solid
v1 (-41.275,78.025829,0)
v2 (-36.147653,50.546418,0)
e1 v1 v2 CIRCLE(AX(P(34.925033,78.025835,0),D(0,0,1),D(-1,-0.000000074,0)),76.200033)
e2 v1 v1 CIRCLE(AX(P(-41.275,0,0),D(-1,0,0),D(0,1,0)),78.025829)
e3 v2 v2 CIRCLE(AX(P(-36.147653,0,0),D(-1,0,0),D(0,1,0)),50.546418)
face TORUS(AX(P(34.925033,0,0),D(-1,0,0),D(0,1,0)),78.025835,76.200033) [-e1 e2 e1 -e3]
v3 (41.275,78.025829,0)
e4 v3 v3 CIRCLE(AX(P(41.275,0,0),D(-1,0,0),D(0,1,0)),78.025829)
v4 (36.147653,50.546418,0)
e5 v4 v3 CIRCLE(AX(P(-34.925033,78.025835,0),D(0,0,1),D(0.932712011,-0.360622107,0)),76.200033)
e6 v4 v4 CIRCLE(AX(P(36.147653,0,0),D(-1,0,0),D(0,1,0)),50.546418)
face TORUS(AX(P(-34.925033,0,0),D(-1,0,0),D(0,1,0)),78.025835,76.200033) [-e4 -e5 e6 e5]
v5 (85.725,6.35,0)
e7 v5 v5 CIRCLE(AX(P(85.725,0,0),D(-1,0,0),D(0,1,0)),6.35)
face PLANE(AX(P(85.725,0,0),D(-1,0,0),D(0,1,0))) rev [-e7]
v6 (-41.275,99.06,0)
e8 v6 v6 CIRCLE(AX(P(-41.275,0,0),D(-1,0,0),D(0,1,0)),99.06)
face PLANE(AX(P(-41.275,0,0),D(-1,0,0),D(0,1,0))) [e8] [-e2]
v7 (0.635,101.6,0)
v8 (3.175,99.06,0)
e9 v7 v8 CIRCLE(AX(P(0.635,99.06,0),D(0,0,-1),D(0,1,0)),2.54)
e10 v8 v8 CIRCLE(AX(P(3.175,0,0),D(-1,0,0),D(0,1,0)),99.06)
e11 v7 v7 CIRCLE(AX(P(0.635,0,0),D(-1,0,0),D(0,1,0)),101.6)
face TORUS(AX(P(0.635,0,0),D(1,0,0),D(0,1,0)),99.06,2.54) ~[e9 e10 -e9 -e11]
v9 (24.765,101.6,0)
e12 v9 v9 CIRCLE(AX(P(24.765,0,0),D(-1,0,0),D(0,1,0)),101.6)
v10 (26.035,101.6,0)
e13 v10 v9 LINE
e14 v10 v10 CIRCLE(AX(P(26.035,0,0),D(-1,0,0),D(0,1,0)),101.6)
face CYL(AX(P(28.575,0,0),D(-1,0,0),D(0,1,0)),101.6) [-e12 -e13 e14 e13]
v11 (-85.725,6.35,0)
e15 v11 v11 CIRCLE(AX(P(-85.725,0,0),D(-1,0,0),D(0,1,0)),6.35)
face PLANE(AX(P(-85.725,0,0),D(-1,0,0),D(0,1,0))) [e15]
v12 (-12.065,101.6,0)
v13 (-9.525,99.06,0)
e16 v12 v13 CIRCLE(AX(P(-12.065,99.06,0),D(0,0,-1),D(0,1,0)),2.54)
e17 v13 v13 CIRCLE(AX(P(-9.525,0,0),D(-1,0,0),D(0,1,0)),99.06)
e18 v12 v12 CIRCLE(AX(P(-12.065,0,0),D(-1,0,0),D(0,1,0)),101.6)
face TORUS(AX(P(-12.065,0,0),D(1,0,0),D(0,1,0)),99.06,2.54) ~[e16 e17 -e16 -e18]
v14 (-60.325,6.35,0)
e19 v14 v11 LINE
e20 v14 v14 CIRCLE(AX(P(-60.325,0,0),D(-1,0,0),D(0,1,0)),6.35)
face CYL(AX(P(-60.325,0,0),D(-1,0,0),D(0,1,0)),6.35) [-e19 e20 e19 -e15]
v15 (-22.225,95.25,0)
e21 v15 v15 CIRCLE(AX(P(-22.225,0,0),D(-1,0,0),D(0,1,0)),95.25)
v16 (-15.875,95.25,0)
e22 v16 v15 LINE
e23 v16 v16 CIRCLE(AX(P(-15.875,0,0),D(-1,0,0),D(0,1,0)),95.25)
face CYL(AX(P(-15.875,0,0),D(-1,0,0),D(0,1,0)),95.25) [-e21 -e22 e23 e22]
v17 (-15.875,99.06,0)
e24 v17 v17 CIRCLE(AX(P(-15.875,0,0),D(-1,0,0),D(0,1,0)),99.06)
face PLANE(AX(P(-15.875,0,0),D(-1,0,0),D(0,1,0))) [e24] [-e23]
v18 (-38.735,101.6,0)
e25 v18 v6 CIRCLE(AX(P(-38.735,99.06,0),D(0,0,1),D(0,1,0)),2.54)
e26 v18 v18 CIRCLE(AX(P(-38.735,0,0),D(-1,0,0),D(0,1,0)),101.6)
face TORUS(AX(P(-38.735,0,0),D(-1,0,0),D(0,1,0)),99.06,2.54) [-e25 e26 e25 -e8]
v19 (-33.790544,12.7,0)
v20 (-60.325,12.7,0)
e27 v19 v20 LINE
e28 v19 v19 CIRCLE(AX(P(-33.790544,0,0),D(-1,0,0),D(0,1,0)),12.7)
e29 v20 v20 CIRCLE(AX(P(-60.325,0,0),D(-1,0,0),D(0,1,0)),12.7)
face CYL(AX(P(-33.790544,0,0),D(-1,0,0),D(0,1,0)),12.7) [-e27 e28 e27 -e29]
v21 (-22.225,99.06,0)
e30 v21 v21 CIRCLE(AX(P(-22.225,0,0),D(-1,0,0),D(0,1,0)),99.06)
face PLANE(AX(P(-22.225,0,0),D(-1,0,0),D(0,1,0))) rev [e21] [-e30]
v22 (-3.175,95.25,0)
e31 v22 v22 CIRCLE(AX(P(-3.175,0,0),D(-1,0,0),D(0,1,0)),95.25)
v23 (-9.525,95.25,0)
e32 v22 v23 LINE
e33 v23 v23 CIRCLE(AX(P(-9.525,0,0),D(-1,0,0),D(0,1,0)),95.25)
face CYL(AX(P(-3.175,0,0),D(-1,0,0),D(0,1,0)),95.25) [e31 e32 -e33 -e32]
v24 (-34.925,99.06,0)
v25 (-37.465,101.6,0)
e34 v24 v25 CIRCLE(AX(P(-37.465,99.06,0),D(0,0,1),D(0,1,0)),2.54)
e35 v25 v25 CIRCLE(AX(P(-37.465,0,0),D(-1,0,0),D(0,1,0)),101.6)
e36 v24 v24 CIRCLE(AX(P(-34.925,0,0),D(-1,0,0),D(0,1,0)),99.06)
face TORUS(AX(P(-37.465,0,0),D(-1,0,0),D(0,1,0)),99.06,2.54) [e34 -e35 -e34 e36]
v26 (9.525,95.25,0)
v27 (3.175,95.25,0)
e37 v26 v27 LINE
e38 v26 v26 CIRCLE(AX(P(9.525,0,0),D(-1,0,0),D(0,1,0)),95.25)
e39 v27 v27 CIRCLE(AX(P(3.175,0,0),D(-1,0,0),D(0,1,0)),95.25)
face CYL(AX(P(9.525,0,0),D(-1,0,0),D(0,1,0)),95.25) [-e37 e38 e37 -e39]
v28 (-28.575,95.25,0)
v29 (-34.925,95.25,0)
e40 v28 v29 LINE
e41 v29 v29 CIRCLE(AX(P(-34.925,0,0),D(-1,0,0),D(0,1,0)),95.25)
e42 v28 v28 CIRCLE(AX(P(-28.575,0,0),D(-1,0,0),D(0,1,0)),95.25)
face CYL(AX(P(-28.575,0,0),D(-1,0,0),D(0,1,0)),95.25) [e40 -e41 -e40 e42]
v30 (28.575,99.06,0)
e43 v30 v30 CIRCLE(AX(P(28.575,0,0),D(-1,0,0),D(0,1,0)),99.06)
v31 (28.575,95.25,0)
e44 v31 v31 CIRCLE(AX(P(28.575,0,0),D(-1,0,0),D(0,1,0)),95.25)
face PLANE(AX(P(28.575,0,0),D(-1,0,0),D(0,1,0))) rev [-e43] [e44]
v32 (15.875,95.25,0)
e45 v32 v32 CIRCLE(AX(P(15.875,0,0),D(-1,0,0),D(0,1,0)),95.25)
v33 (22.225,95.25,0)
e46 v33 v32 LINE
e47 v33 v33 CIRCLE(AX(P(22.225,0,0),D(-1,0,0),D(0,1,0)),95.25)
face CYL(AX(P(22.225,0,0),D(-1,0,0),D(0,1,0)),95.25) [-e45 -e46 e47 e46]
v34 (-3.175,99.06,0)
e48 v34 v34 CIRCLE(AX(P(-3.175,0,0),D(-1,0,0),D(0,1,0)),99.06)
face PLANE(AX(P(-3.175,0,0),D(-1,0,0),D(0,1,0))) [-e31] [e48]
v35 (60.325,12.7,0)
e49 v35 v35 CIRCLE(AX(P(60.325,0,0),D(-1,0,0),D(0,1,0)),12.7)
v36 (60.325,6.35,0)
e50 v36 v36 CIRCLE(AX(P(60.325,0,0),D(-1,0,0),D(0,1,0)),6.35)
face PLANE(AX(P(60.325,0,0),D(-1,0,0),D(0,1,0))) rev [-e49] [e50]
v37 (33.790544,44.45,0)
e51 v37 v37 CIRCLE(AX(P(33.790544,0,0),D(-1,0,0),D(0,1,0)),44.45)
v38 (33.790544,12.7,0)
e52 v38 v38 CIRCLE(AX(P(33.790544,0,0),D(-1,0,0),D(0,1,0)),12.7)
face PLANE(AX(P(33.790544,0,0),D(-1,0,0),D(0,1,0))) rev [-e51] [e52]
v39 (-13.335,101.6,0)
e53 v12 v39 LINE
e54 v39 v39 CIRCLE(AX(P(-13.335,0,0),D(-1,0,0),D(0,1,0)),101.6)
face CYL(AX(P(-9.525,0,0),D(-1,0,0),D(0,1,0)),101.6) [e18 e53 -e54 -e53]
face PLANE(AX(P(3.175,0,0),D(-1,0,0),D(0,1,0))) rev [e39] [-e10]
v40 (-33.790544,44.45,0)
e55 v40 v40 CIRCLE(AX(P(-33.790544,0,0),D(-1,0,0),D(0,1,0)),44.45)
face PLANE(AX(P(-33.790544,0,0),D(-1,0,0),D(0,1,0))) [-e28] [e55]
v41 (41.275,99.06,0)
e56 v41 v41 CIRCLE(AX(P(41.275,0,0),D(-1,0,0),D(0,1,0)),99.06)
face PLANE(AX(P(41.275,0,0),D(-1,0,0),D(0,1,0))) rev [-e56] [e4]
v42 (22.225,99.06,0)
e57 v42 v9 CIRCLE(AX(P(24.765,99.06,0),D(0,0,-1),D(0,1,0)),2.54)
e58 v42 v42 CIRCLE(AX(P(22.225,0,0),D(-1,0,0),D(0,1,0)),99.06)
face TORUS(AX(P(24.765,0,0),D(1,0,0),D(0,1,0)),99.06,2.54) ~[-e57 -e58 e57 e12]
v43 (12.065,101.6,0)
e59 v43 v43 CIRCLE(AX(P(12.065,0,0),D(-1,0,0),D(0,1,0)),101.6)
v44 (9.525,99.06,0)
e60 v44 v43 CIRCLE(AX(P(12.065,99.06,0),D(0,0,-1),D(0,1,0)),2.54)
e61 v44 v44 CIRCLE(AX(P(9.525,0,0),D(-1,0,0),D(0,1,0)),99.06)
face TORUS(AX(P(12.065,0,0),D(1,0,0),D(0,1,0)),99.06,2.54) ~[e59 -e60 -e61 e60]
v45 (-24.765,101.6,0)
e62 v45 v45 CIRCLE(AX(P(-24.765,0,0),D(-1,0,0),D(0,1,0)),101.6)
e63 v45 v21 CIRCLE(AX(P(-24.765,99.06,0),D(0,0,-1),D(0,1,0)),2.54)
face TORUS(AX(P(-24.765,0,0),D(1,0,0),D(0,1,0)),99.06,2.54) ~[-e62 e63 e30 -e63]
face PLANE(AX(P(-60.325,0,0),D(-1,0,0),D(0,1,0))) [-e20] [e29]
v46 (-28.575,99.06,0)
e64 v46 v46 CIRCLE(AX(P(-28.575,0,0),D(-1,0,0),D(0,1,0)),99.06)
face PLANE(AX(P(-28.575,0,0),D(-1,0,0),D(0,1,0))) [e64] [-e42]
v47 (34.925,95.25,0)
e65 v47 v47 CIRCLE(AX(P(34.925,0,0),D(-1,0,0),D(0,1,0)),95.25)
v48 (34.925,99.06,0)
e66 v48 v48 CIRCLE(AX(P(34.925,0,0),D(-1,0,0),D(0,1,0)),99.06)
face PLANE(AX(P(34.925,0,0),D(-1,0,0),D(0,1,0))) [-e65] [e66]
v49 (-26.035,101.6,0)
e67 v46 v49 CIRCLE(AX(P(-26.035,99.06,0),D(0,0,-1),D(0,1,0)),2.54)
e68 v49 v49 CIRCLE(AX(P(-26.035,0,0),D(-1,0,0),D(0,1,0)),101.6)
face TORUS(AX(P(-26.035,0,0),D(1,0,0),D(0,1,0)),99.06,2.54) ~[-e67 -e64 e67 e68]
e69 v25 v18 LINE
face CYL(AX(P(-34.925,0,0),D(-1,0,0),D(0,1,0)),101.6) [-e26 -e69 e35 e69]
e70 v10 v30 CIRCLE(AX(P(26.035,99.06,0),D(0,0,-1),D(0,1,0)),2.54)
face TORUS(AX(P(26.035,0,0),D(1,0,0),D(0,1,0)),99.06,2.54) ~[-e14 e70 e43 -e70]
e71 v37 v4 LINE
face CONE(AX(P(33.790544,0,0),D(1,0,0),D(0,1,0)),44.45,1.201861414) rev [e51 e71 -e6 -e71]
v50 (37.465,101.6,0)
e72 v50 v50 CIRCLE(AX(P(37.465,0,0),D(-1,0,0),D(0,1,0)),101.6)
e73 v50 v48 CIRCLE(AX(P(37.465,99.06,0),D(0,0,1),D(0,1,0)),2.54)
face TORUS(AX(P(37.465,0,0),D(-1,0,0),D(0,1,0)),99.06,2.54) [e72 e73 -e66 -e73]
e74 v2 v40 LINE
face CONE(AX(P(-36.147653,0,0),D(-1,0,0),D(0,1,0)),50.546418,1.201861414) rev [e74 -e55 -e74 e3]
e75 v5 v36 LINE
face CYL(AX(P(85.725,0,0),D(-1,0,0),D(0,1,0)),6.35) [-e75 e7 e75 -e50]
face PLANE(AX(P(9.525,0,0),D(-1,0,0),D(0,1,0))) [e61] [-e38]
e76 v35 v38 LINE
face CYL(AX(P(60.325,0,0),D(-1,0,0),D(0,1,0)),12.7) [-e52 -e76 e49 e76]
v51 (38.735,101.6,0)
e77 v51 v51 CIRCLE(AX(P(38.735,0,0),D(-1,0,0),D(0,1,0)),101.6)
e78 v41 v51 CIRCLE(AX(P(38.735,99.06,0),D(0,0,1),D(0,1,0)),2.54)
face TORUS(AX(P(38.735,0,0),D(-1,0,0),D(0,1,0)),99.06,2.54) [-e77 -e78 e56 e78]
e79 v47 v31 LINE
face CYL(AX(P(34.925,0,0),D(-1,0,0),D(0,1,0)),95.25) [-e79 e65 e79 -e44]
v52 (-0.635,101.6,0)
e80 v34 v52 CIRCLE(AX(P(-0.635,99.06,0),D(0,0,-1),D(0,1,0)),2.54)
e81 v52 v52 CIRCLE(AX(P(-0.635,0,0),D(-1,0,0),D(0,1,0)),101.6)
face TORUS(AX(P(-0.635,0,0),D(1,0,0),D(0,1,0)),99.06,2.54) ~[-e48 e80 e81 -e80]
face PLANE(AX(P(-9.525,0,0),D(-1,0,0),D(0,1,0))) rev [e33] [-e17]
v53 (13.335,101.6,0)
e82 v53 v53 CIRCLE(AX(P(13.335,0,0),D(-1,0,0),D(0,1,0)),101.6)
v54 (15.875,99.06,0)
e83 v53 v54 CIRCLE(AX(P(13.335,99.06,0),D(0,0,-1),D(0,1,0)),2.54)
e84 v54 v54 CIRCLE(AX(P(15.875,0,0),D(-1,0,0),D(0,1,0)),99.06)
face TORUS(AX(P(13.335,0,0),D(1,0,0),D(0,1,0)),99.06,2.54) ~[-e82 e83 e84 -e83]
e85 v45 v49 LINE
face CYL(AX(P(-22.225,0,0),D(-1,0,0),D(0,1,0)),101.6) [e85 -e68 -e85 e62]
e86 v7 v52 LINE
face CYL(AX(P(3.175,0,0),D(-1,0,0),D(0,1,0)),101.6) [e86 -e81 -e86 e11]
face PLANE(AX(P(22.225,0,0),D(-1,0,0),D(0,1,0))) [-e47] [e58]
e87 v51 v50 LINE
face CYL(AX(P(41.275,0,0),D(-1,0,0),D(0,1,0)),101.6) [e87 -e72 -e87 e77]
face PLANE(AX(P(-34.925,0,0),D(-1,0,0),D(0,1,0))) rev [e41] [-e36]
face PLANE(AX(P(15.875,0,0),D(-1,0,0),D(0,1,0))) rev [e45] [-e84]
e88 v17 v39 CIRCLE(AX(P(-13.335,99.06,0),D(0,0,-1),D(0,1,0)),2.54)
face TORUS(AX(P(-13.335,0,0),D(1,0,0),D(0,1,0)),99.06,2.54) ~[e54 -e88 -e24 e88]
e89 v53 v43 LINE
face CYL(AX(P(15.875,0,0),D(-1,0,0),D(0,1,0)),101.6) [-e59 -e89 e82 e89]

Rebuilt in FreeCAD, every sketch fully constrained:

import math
import FreeCAD as App
import Part
import Sketcher
from FreeCAD import Vector
Q = App.Units.Quantity


def edges_at(feature, points):
    """Names of the edges that pass closest to the given points."""
    edges = feature.Shape.Edges
    near = lambda p: min(range(len(edges)), key=lambda i: edges[i].distToShape(Part.Vertex(*p))[0])
    return sorted({f"Edge{near(p) + 1}" for p in points})

doc = App.newDocument("Part")
body = doc.addObject("PartDesign::Body", "Body")

# Sketch on XY plane
sketch1 = body.newObject("Sketcher::SketchObject", "Sketch")
sketch1.AttachmentSupport = (doc.getObject("XY_Plane"), [""])
sketch1.MapMode = "FlatFace"
sketch1.addGeometry([
    Part.LineSegment(Vector(3.175, 101.6, 0), Vector(-3.175, 101.6, 0)),  # 0
    Part.LineSegment(Vector(-3.175, 101.6, 0), Vector(-3.175, 95.25, 0)),  # 1
    Part.LineSegment(Vector(-3.175, 95.25, 0), Vector(-9.525, 95.25, 0)),  # 2
    Part.LineSegment(Vector(-9.525, 95.25, 0), Vector(-9.525, 101.6, 0)),  # 3
    Part.LineSegment(Vector(-9.525, 101.6, 0), Vector(-15.875, 101.6, 0)),  # 4
    Part.LineSegment(Vector(-15.875, 101.6, 0), Vector(-15.875, 95.25, 0)),  # 5
    Part.LineSegment(Vector(-15.875, 95.25, 0), Vector(-22.225, 95.25, 0)),  # 6
    Part.LineSegment(Vector(-22.225, 95.25, 0), Vector(-22.225, 101.6, 0)),  # 7
    Part.LineSegment(Vector(-22.225, 101.6, 0), Vector(-28.575, 101.6, 0)),  # 8
    Part.LineSegment(Vector(-28.575, 101.6, 0), Vector(-28.575, 95.25, 0)),  # 9
    Part.LineSegment(Vector(-28.575, 95.25, 0), Vector(-34.925, 95.25, 0)),  # 10
    Part.LineSegment(Vector(-34.925, 95.25, 0), Vector(-34.925, 101.6, 0)),  # 11
    Part.LineSegment(Vector(-34.925, 101.6, 0), Vector(-41.275, 101.6, 0)),  # 12
    Part.LineSegment(Vector(-41.275, 101.6, 0), Vector(-41.275, 78.025829, 0)),  # 13
    Part.ArcOfCircle(Part.Circle(Vector(34.925033, 78.025835, 0), Vector(0, 0, 1), 76.200033), math.radians(-179.999996), math.radians(-158.861593)),  # 14
    Part.LineSegment(Vector(-36.147653, 50.546418, 0), Vector(-33.790544, 44.45, 0)),  # 15
    Part.LineSegment(Vector(-33.790544, 44.45, 0), Vector(-33.790544, 12.7, 0)),  # 16
    Part.LineSegment(Vector(-33.790544, 12.7, 0), Vector(-60.325, 12.7, 0)),  # 17
    Part.LineSegment(Vector(-60.325, 12.7, 0), Vector(-60.325, 6.35, 0)),  # 18
    Part.LineSegment(Vector(-60.325, 6.35, 0), Vector(-85.725, 6.35, 0)),  # 19
    Part.LineSegment(Vector(-85.725, 6.35, 0), Vector(-85.725, 0, 0)),  # 20
    Part.LineSegment(Vector(-85.725, 0, 0), Vector(85.725, 0, 0)),  # 21
    Part.LineSegment(Vector(85.725, 0, 0), Vector(85.725, 6.35, 0)),  # 22
    Part.LineSegment(Vector(85.725, 6.35, 0), Vector(60.325, 6.35, 0)),  # 23
    Part.LineSegment(Vector(60.325, 6.35, 0), Vector(60.325, 12.7, 0)),  # 24
    Part.LineSegment(Vector(60.325, 12.7, 0), Vector(33.790544, 12.7, 0)),  # 25
    Part.LineSegment(Vector(33.790544, 12.7, 0), Vector(33.790544, 44.45, 0)),  # 26
    Part.LineSegment(Vector(33.790544, 44.45, 0), Vector(36.147653, 50.546418, 0)),  # 27
    Part.ArcOfCircle(Part.Circle(Vector(-34.925033, 78.025835, 0), Vector(0, 0, 1), 76.200033), math.radians(-21.138407), math.radians(-0.000004)),  # 28
    Part.LineSegment(Vector(41.275, 78.025829, 0), Vector(41.275, 101.6, 0)),  # 29
    Part.LineSegment(Vector(41.275, 101.6, 0), Vector(34.925, 101.6, 0)),  # 30
    Part.LineSegment(Vector(34.925, 101.6, 0), Vector(34.925, 95.25, 0)),  # 31
    Part.LineSegment(Vector(34.925, 95.25, 0), Vector(28.575, 95.25, 0)),  # 32
    Part.LineSegment(Vector(28.575, 95.25, 0), Vector(28.575, 101.6, 0)),  # 33
    Part.LineSegment(Vector(28.575, 101.6, 0), Vector(22.225, 101.6, 0)),  # 34
    Part.LineSegment(Vector(22.225, 101.6, 0), Vector(22.225, 95.25, 0)),  # 35
    Part.LineSegment(Vector(22.225, 95.25, 0), Vector(15.875, 95.25, 0)),  # 36
    Part.LineSegment(Vector(15.875, 95.25, 0), Vector(15.875, 101.6, 0)),  # 37
    Part.LineSegment(Vector(15.875, 101.6, 0), Vector(9.525, 101.6, 0)),  # 38
    Part.LineSegment(Vector(9.525, 101.6, 0), Vector(9.525, 95.25, 0)),  # 39
    Part.LineSegment(Vector(9.525, 95.25, 0), Vector(3.175, 95.25, 0)),  # 40
    Part.LineSegment(Vector(3.175, 95.25, 0), Vector(3.175, 101.6, 0)),  # 41
], False)
sketch1.addConstraint([
    Sketcher.Constraint("Coincident", 0, 2, 1, 1),
    Sketcher.Constraint("Coincident", 1, 2, 2, 1),
    Sketcher.Constraint("Coincident", 2, 2, 3, 1),
    Sketcher.Constraint("Coincident", 3, 2, 4, 1),
    Sketcher.Constraint("Coincident", 4, 2, 5, 1),
    Sketcher.Constraint("Coincident", 5, 2, 6, 1),
    Sketcher.Constraint("Coincident", 6, 2, 7, 1),
    Sketcher.Constraint("Coincident", 7, 2, 8, 1),
    Sketcher.Constraint("Coincident", 8, 2, 9, 1),
    Sketcher.Constraint("Coincident", 9, 2, 10, 1),
    Sketcher.Constraint("Coincident", 10, 2, 11, 1),
    Sketcher.Constraint("Coincident", 11, 2, 12, 1),
    Sketcher.Constraint("Coincident", 12, 2, 13, 1),
    Sketcher.Constraint("Coincident", 13, 2, 14, 1),
    Sketcher.Constraint("Coincident", 14, 2, 15, 1),
    Sketcher.Constraint("Coincident", 15, 2, 16, 1),
    Sketcher.Constraint("Coincident", 16, 2, 17, 1),
    Sketcher.Constraint("Coincident", 17, 2, 18, 1),
    Sketcher.Constraint("Coincident", 18, 2, 19, 1),
    Sketcher.Constraint("Coincident", 19, 2, 20, 1),
    Sketcher.Constraint("Coincident", 20, 2, 21, 1),
    Sketcher.Constraint("Coincident", 21, 2, 22, 1),
    Sketcher.Constraint("Coincident", 22, 2, 23, 1),
    Sketcher.Constraint("Coincident", 23, 2, 24, 1),
    Sketcher.Constraint("Coincident", 24, 2, 25, 1),
    Sketcher.Constraint("Coincident", 25, 2, 26, 1),
    Sketcher.Constraint("Coincident", 26, 2, 27, 1),
    Sketcher.Constraint("Coincident", 27, 2, 28, 1),
    Sketcher.Constraint("Coincident", 28, 2, 29, 1),
    Sketcher.Constraint("Coincident", 29, 2, 30, 1),
    Sketcher.Constraint("Coincident", 30, 2, 31, 1),
    Sketcher.Constraint("Coincident", 31, 2, 32, 1),
    Sketcher.Constraint("Coincident", 32, 2, 33, 1),
    Sketcher.Constraint("Coincident", 33, 2, 34, 1),
    Sketcher.Constraint("Coincident", 34, 2, 35, 1),
    Sketcher.Constraint("Coincident", 35, 2, 36, 1),
    Sketcher.Constraint("Coincident", 36, 2, 37, 1),
    Sketcher.Constraint("Coincident", 37, 2, 38, 1),
    Sketcher.Constraint("Coincident", 38, 2, 39, 1),
    Sketcher.Constraint("Coincident", 39, 2, 40, 1),
    Sketcher.Constraint("Coincident", 40, 2, 41, 1),
    Sketcher.Constraint("Coincident", 41, 2, 0, 1),
    Sketcher.Constraint("Horizontal", 0),
    Sketcher.Constraint("Vertical", 1),
    Sketcher.Constraint("Horizontal", 2),
    Sketcher.Constraint("Vertical", 3),
    Sketcher.Constraint("Horizontal", 4),
    Sketcher.Constraint("Vertical", 5),
    Sketcher.Constraint("Horizontal", 6),
    Sketcher.Constraint("Vertical", 7),
    Sketcher.Constraint("Horizontal", 8),
    Sketcher.Constraint("Vertical", 9),
    Sketcher.Constraint("Horizontal", 10),
    Sketcher.Constraint("Vertical", 11),
    Sketcher.Constraint("Horizontal", 12),
    Sketcher.Constraint("Vertical", 13),
    Sketcher.Constraint("Vertical", 16),
    Sketcher.Constraint("Horizontal", 17),
    Sketcher.Constraint("Vertical", 18),
    Sketcher.Constraint("Horizontal", 19),
    Sketcher.Constraint("Vertical", 20),
    Sketcher.Constraint("Horizontal", 21),
    Sketcher.Constraint("Vertical", 22),
    Sketcher.Constraint("Horizontal", 23),
    Sketcher.Constraint("Vertical", 24),
    Sketcher.Constraint("Horizontal", 25),
    Sketcher.Constraint("Vertical", 26),
    Sketcher.Constraint("Vertical", 29),
    Sketcher.Constraint("Horizontal", 30),
    Sketcher.Constraint("Vertical", 31),
    Sketcher.Constraint("Horizontal", 32),
    Sketcher.Constraint("Vertical", 33),
    Sketcher.Constraint("Horizontal", 34),
    Sketcher.Constraint("Vertical", 35),
    Sketcher.Constraint("Horizontal", 36),
    Sketcher.Constraint("Vertical", 37),
    Sketcher.Constraint("Horizontal", 38),
    Sketcher.Constraint("Vertical", 39),
    Sketcher.Constraint("Horizontal", 40),
    Sketcher.Constraint("Vertical", 41),
    Sketcher.Constraint("PointOnObject", 20, 2, -1),
    Sketcher.Constraint("DistanceX", 19, 2, 19, 1, Q("1 in")),
    Sketcher.Constraint("DistanceX", 23, 2, 23, 1, Q("1 in")),
    Sketcher.Constraint("DistanceY", -1, 1, 0, 2, Q("4 in")),
    Sketcher.Constraint("DistanceY", -1, 1, 3, 2, Q("4 in")),
    Sketcher.Constraint("DistanceY", -1, 1, 7, 2, Q("4 in")),
    Sketcher.Constraint("DistanceY", -1, 1, 11, 2, Q("4 in")),
    Sketcher.Constraint("DistanceY", -1, 1, 29, 2, Q("4 in")),
    Sketcher.Constraint("DistanceY", -1, 1, 33, 2, Q("4 in")),
    Sketcher.Constraint("DistanceY", -1, 1, 37, 2, Q("4 in")),
    Sketcher.Constraint("DistanceY", 15, 2, 10, 2, Q("2 in")),
    Sketcher.Constraint("DistanceY", 26, 2, 1, 2, Q("2 in")),
    Sketcher.Constraint("DistanceX", 3, 2, 29, 2, Q("2 in")),
    Sketcher.Constraint("DistanceX", 0, 2, 0, 1, Q("0.25 in")),
    Sketcher.Constraint("DistanceX", 2, 2, 2, 1, Q("0.25 in")),
    Sketcher.Constraint("DistanceX", 4, 2, 4, 1, Q("0.25 in")),
    Sketcher.Constraint("DistanceX", 6, 2, 6, 1, Q("0.25 in")),
    Sketcher.Constraint("DistanceX", 8, 2, 8, 1, Q("0.25 in")),
    Sketcher.Constraint("DistanceX", 10, 2, 10, 1, Q("0.25 in")),
    Sketcher.Constraint("DistanceX", 12, 2, 12, 1, Q("0.25 in")),
    Sketcher.Constraint("DistanceX", 21, 1, 21, 2, Q("6.75 in")),
    Sketcher.Constraint("DistanceX", 30, 2, 30, 1, Q("0.25 in")),
    Sketcher.Constraint("DistanceX", 32, 2, 32, 1, Q("0.25 in")),
    Sketcher.Constraint("DistanceX", 34, 2, 34, 1, Q("0.25 in")),
    Sketcher.Constraint("DistanceX", 36, 2, 36, 1, Q("0.25 in")),
    Sketcher.Constraint("DistanceX", 38, 2, 38, 1, Q("0.25 in")),
    Sketcher.Constraint("DistanceY", 1, 2, 1, 1, Q("0.25 in")),
    Sketcher.Constraint("DistanceY", 5, 2, 5, 1, Q("0.25 in")),
    Sketcher.Constraint("DistanceY", 9, 2, 9, 1, Q("0.25 in")),
    Sketcher.Constraint("DistanceY", 16, 2, 16, 1, Q("1.25 in")),
    Sketcher.Constraint("DistanceY", 18, 2, 18, 1, Q("0.25 in")),
    Sketcher.Constraint("DistanceY", 22, 1, 22, 2, Q("0.25 in")),
    Sketcher.Constraint("DistanceY", 24, 1, 24, 2, Q("0.25 in")),
    Sketcher.Constraint("DistanceY", 31, 2, 31, 1, Q("0.25 in")),
    Sketcher.Constraint("DistanceY", 35, 2, 35, 1, Q("0.25 in")),
    Sketcher.Constraint("DistanceY", 39, 2, 39, 1, Q("0.25 in")),
    Sketcher.Constraint("DistanceX", 1, 2, 21, 2, Q("3.5 in")),
    Sketcher.Constraint("DistanceX", 0, 2, -1, 1, Q("0.125 in")),
    Sketcher.Constraint("Radius", 14, 76.200033),
    Sketcher.Constraint("Radius", 28, 76.200033),
    Sketcher.Constraint("DistanceY", 13, 2, 13, 1, 23.574171),
    Sketcher.Constraint("DistanceY", 29, 1, 29, 2, 23.574171),
    Sketcher.Constraint("DistanceX", 17, 2, 17, 1, 26.534456),
    Sketcher.Constraint("DistanceX", 25, 2, 25, 1, 26.534456),
    Sketcher.Constraint("DistanceY", -1, 1, 27, 2, 50.546418),
    Sketcher.Constraint("DistanceX", 14, 2, 28, 3, 1.22262),
    Sketcher.Constraint("DistanceY", 14, 2, 13, 2, 27.479411),
    Sketcher.Constraint("DistanceX", 26, 2, 27, 2, 2.357109),
])
revolution = body.newObject("PartDesign::Revolution", "Revolution")
revolution.Profile = sketch1
revolution.ReferenceAxis = (sketch1, ["H_Axis"])
revolution.Angle = 360
doc.recompute()

fillet = body.newObject("PartDesign::Fillet", "Fillet")
fillet.Base = (revolution, edges_at(revolution, [
    (-41.275, -101.6, 0),
    (41.275, -101.6, 0),
    (-34.925, -101.6, 0),
    (34.925, -101.6, 0),
]))
fillet.Radius = Q("0.1 in")
doc.recompute()

fillet2 = body.newObject("PartDesign::Fillet", "Fillet001")
fillet2.Base = (fillet, edges_at(fillet, [
    (-28.575, -101.6, 0),
    (-22.225, -101.6, 0),
    (-15.875, -101.6, 0),
    (-9.525, -101.6, 0),
    (-3.175, -101.6, 0),
    (3.175, -101.6, 0),
    (9.525, -101.6, 0),
    (15.875, -101.6, 0),
    (22.225, -101.6, 0),
    (28.575, -101.6, 0),
]))
fillet2.Radius = Q("0.1 in")

doc.recompute()
